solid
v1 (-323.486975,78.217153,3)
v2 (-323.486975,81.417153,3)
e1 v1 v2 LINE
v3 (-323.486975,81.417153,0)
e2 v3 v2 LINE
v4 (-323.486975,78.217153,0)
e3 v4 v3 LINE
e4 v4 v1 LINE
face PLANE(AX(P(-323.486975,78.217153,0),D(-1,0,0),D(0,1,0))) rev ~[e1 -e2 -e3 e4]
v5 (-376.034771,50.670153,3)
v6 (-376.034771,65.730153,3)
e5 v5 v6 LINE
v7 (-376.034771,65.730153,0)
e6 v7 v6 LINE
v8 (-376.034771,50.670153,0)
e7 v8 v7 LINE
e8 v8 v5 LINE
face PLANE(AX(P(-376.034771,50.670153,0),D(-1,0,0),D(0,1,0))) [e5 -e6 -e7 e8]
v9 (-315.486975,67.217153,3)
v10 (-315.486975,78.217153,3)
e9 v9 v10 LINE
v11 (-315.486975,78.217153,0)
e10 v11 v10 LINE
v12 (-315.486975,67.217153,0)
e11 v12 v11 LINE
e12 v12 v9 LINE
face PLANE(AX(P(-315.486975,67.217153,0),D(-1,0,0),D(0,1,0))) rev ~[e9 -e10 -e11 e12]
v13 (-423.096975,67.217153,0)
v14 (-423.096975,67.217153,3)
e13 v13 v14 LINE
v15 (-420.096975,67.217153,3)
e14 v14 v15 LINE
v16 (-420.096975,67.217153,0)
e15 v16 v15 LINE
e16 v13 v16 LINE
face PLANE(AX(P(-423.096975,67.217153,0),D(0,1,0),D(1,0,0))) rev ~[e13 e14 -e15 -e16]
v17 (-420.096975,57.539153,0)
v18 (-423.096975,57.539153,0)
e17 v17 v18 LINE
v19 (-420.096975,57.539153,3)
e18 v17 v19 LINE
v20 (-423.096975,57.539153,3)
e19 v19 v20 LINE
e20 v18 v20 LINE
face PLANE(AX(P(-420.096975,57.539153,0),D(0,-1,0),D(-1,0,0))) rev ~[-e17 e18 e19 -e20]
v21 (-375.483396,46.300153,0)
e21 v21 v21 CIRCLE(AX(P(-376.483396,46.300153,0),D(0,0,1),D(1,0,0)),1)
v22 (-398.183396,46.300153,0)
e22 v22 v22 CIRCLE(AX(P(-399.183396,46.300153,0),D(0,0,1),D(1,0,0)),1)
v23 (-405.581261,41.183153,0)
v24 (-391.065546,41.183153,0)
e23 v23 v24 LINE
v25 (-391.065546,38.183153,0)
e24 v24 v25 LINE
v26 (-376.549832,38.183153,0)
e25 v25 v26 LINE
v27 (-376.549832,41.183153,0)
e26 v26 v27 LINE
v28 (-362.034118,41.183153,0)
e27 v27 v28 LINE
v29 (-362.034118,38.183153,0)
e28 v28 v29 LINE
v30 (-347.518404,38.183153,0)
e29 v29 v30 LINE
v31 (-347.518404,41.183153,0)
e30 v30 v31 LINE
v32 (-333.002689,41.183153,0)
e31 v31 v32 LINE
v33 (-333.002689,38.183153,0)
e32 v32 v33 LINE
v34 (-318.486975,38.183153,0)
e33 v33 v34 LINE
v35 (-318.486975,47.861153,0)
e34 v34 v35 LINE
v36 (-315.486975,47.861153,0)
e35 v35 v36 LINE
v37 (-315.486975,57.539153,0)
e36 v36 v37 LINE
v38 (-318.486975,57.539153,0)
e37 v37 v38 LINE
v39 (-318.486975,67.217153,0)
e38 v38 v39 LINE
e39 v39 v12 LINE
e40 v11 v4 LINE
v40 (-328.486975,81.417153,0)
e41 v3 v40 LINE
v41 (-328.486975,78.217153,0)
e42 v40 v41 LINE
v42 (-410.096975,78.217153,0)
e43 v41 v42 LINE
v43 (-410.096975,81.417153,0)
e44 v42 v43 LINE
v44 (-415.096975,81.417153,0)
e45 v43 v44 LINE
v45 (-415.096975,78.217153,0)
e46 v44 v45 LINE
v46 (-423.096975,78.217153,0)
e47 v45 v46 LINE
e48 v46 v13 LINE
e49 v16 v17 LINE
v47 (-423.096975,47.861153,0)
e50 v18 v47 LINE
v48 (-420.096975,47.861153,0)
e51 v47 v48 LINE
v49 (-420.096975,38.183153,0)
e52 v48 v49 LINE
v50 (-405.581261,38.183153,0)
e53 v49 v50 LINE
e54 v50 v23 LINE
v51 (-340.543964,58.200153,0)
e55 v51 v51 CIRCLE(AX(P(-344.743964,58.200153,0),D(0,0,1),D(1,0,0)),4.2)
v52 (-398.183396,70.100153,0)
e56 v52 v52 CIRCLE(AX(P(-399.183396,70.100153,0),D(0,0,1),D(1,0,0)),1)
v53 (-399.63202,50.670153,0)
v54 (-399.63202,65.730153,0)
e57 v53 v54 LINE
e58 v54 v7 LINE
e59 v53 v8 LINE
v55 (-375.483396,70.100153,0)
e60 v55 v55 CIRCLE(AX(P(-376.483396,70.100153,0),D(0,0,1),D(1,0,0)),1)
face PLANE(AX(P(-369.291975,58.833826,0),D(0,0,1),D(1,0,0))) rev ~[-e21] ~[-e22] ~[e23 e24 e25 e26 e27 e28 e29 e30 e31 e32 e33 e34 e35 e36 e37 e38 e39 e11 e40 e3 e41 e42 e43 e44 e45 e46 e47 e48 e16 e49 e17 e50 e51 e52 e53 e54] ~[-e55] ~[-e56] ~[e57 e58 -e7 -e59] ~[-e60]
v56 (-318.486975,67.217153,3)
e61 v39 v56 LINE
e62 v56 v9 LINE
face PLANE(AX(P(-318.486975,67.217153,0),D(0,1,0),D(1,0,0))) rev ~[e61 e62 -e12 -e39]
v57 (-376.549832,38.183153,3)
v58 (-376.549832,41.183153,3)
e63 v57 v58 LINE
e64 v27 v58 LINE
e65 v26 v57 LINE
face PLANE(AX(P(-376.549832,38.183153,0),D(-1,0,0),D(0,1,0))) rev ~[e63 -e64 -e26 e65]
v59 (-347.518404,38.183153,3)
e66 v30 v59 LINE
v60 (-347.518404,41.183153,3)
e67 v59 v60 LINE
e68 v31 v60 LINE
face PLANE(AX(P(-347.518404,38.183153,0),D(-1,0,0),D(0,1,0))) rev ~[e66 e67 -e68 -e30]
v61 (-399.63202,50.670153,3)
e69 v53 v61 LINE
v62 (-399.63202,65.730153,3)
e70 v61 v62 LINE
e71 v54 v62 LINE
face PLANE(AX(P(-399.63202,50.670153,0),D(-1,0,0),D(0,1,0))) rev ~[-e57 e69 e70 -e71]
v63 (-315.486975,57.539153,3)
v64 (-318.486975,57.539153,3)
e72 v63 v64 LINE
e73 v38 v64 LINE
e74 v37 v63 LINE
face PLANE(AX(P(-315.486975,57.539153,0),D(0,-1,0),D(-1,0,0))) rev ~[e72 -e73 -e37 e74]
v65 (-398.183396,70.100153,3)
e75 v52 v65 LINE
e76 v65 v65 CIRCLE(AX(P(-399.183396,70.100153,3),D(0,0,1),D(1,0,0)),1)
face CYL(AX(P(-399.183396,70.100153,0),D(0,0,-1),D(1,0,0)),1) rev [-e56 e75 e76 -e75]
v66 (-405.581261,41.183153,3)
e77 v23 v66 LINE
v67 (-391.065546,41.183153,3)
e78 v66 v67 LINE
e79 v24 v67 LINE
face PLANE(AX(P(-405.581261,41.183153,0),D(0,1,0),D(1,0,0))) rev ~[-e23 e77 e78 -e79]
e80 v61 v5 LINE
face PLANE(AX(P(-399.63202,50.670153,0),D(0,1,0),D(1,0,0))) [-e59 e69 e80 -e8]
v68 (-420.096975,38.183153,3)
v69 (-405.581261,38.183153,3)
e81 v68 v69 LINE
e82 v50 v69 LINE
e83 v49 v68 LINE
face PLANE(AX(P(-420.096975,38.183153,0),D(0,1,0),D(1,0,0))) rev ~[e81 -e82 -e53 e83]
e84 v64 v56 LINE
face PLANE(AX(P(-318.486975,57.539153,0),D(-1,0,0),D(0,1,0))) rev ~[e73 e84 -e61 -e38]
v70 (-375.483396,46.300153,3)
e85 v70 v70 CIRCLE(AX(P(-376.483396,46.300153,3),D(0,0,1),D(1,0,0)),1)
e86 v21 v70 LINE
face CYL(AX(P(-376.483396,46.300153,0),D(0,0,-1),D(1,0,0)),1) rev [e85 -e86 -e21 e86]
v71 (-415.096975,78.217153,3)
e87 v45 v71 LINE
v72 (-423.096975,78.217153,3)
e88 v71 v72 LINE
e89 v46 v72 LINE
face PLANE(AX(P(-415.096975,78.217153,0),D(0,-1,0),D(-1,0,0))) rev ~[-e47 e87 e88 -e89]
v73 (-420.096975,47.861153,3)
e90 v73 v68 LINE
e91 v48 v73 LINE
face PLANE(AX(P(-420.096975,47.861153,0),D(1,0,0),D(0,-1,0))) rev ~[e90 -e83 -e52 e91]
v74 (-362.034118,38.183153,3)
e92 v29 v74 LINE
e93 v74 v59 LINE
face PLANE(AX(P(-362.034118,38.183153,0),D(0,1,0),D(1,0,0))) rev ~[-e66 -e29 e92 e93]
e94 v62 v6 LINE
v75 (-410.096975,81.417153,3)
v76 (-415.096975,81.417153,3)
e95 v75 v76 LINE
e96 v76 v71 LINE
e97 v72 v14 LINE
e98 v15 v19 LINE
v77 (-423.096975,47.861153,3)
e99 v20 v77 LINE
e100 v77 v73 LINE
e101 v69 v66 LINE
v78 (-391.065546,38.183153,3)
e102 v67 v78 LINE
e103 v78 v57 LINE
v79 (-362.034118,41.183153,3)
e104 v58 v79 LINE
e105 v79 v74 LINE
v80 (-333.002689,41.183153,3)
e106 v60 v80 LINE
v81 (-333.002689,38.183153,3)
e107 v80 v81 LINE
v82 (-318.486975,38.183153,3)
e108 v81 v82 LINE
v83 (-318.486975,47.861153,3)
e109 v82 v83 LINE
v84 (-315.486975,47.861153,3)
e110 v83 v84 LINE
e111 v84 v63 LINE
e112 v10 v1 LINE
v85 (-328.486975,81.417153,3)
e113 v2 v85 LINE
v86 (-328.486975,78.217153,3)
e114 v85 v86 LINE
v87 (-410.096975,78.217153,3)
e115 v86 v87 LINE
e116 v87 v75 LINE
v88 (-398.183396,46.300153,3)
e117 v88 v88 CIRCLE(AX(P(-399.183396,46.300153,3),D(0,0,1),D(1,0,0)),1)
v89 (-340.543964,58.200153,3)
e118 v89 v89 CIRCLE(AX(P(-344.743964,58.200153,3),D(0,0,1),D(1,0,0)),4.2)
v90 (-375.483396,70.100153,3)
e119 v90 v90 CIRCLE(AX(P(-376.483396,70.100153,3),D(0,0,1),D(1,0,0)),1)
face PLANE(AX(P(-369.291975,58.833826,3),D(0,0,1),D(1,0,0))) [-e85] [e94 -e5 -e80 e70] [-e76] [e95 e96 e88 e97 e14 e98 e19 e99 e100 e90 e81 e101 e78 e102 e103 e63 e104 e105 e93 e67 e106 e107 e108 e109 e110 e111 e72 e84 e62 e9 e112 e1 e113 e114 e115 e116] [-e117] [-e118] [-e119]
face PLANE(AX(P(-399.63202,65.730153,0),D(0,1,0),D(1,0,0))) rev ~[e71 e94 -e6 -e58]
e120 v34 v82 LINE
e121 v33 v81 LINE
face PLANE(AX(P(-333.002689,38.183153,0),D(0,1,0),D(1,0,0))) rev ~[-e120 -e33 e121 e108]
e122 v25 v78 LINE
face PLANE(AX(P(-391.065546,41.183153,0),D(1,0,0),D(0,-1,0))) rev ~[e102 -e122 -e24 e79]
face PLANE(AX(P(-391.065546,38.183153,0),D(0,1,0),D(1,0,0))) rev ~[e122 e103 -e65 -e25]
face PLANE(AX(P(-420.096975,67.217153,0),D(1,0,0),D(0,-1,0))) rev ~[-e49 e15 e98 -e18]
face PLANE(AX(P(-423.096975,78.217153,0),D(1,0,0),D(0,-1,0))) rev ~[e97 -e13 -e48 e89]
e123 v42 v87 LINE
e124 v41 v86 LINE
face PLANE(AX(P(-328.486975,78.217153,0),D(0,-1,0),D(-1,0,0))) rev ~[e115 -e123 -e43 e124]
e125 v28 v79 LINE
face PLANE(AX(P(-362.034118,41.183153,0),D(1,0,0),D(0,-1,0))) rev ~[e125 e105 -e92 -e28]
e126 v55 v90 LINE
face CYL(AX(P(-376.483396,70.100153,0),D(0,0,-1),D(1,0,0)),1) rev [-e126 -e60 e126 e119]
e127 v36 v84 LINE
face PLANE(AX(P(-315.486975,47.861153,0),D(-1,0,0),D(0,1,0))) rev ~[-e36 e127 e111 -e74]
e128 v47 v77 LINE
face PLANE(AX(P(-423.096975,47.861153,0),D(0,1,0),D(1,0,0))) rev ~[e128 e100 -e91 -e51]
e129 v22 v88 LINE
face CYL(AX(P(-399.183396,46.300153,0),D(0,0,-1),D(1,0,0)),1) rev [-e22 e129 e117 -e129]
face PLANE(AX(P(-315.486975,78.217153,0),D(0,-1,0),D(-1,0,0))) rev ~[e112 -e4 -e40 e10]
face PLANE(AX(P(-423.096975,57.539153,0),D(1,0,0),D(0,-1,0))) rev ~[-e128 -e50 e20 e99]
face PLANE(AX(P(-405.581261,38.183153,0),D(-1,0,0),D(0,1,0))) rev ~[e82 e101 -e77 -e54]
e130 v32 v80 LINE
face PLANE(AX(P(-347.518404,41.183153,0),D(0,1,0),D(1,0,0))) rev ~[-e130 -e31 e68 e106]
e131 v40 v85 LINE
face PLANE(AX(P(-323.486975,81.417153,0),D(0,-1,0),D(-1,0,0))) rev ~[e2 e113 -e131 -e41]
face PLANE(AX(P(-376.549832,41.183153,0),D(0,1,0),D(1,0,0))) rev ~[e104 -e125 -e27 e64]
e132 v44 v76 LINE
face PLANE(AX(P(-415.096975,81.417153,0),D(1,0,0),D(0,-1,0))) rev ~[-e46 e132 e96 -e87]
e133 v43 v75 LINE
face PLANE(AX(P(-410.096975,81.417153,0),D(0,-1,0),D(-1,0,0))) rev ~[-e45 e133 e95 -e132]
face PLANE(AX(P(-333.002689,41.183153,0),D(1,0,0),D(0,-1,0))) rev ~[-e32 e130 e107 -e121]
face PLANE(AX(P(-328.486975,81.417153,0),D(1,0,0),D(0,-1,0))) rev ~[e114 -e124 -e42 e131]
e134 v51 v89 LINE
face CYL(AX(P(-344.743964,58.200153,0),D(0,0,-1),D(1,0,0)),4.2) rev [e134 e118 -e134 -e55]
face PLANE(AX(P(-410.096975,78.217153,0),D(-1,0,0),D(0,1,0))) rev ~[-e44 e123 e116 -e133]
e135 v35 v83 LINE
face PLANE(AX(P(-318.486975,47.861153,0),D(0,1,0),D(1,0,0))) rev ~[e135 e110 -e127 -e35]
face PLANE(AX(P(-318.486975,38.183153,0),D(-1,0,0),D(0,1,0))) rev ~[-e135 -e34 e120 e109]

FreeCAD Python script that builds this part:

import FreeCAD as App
import Part
import Sketcher
Q = App.Units.Quantity


def add_polygon(sketch, points):
    """Adds a closed chain of lines whose ends are joined by coincident constraints."""
    first, n = sketch.GeometryCount, len(points)
    for a, b in zip(points, points[1:] + points[:1]):
        sketch.addGeometry(Part.LineSegment(App.Vector(*a, 0), App.Vector(*b, 0)), False)
    for i in range(n):
        sketch.addConstraint(Sketcher.Constraint("Coincident", first + i, 2, first + (i + 1) % n, 1))

doc = App.newDocument("Part")
body = doc.addObject("PartDesign::Body", "Body")

sketch1 = body.newObject("Sketcher::SketchObject", "Sketch")
sketch1.AttachmentSupport = (doc.getObject("XY_Plane"), [""])
sketch1.MapMode = "FlatFace"
add_polygon(sketch1, [(-333, 38.2), (-318.5, 38.2), (-318.5, 47.9), (-315.5, 47.9), (-315.5, 57.5), (-318.5, 57.5), (-318.5, 67.2), (-315.5, 67.2), (-315.5, 78.2), (-323.5, 78.2), (-323.5, 81.4), (-328.5, 81.4), (-328.5, 78.2), (-410.1, 78.2), (-410.1, 81.4), (-415.1, 81.4), (-415.1, 78.2), (-423.1, 78.2), (-423.1, 67.2), (-420.1, 67.2), (-420.1, 57.5), (-423.1, 57.5), (-423.1, 47.9), (-420.1, 47.9), (-420.1, 38.2), (-405.6, 38.2), (-405.6, 41.2), (-391.1, 41.2), (-391.1, 38.2), (-376.5, 38.2), (-376.5, 41.2), (-362, 41.2), (-362, 38.2), (-347.5, 38.2), (-347.5, 41.2), (-333, 41.2)])
sketch1.addGeometry(Part.Circle(App.Vector(-399.2, 46.3, 0), App.Vector(0, 0, 1), 1), False)
sketch1.addGeometry(Part.Circle(App.Vector(-376.5, 46.3, 0), App.Vector(0, 0, 1), 1), False)
add_polygon(sketch1, [(-376, 50.7), (-399.6, 50.7), (-399.6, 65.7), (-376, 65.7)])
sketch1.addGeometry(Part.Circle(App.Vector(-399.2, 70.1, 0), App.Vector(0, 0, 1), 1), False)
sketch1.addGeometry(Part.Circle(App.Vector(-376.5, 70.1, 0), App.Vector(0, 0, 1), 1), False)
sketch1.addGeometry(Part.Circle(App.Vector(-344.7, 58.2, 0), App.Vector(0, 0, 1), 4.2), False)
sketch1.addConstraint([
    Sketcher.Constraint("Horizontal", 0),
    Sketcher.Constraint("Vertical", 1),
    Sketcher.Constraint("Horizontal", 2),
    Sketcher.Constraint("Vertical", 3),
    Sketcher.Constraint("Horizontal", 4),
    Sketcher.Constraint("Vertical", 5),
    Sketcher.Constraint("Horizontal", 6),
    Sketcher.Constraint("Vertical", 7),
    Sketcher.Constraint("Horizontal", 8),
    Sketcher.Constraint("Vertical", 9),
    Sketcher.Constraint("Horizontal", 10),
    Sketcher.Constraint("Vertical", 11),
    Sketcher.Constraint("Horizontal", 12),
    Sketcher.Constraint("Vertical", 13),
    Sketcher.Constraint("Horizontal", 14),
    Sketcher.Constraint("Vertical", 15),
    Sketcher.Constraint("Horizontal", 16),
    Sketcher.Constraint("Vertical", 17),
    Sketcher.Constraint("Horizontal", 18),
    Sketcher.Constraint("Vertical", 19),
    Sketcher.Constraint("Horizontal", 20),
    Sketcher.Constraint("Vertical", 21),
    Sketcher.Constraint("Horizontal", 22),
    Sketcher.Constraint("Vertical", 23),
    Sketcher.Constraint("Horizontal", 24),
    Sketcher.Constraint("Vertical", 25),
    Sketcher.Constraint("Horizontal", 26),
    Sketcher.Constraint("Vertical", 27),
    Sketcher.Constraint("Horizontal", 28),
    Sketcher.Constraint("Vertical", 29),
    Sketcher.Constraint("Horizontal", 30),
    Sketcher.Constraint("Vertical", 31),
    Sketcher.Constraint("Horizontal", 32),
    Sketcher.Constraint("Vertical", 33),
    Sketcher.Constraint("Horizontal", 34),
    Sketcher.Constraint("Vertical", 35),
    Sketcher.Constraint("Horizontal", 38),
    Sketcher.Constraint("Vertical", 39),
    Sketcher.Constraint("Horizontal", 40),
    Sketcher.Constraint("Vertical", 41),
    Sketcher.Constraint("Equal", 36, 37),
    Sketcher.Constraint("Equal", 37, 42),
    Sketcher.Constraint("Equal", 42, 43),
    Sketcher.Constraint("Horizontal", 36, 3, 37, 3),
    Sketcher.Constraint("Horizontal", 42, 3, 43, 3),
    Sketcher.Constraint("Horizontal", 8, 2, 11, 2),
    Sketcher.Constraint("Horizontal", 10, 2, 13, 2),
    Sketcher.Constraint("Horizontal", 12, 2, 15, 2),
    Sketcher.Constraint("Horizontal", 6, 2, 17, 2),
    Sketcher.Constraint("Horizontal", 4, 2, 19, 2),
    Sketcher.Constraint("Horizontal", 2, 2, 21, 2),
    Sketcher.Constraint("Horizontal", 0, 2, 23, 2),
    Sketcher.Constraint("Horizontal", 24, 2, 27, 2),
    Sketcher.Constraint("Horizontal", 26, 2, 29, 2),
    Sketcher.Constraint("Horizontal", 28, 2, 31, 2),
    Sketcher.Constraint("Horizontal", 30, 2, 33, 2),
    Sketcher.Constraint("Vertical", 36, 3, 42, 3),
    Sketcher.Constraint("Vertical", 37, 3, 43, 3),
    Sketcher.Constraint("Vertical", 1, 2, 4, 2),
    Sketcher.Constraint("Vertical", 3, 2, 6, 2),
    Sketcher.Constraint("Vertical", 17, 2, 20, 2),
    Sketcher.Constraint("Vertical", 19, 2, 22, 2),
    Sketcher.Constraint("Equal", 10, 14),
    Sketcher.Constraint("Equal", 8, 16),
    Sketcher.Constraint("Equal", 6, 18),
    Sketcher.Constraint("Equal", 0, 24),
    Sketcher.Constraint("Equal", 24, 26),
    Sketcher.Constraint("Equal", 26, 28),
    Sketcher.Constraint("Equal", 28, 30),
    Sketcher.Constraint("Equal", 30, 32),
    Sketcher.Constraint("Equal", 32, 34),
    Sketcher.Constraint("Equal", 1, 3),
    Sketcher.Constraint("Equal", 3, 5),
    Sketcher.Constraint("Equal", 22, 25),
    Sketcher.Constraint("Diameter", 36, Q("2 mm")),
    Sketcher.Constraint("Diameter", 44, Q("8.4 mm")),
    Sketcher.Constraint("DistanceX", 2, 1, 2, 2, Q("3 mm")),
    Sketcher.Constraint("DistanceX", 8, 2, 8, 1, Q("8 mm")),
    Sketcher.Constraint("DistanceX", 10, 2, 10, 1, Q("5 mm")),
    Sketcher.Constraint("DistanceY", 7, 1, 7, 2, Q("11 mm")),
    Sketcher.Constraint("DistanceY", 9, 1, 9, 2, Q("3.2 mm")),
    Sketcher.Constraint("DistanceX", 12, 2, 12, 1, Q("81.61 mm")),
    Sketcher.Constraint("DistanceY", 39, 1, 39, 2, Q("15.06 mm")),
    Sketcher.Constraint("DistanceX", 36, 3, 37, 3, Q("22.7 mm")),
    Sketcher.Constraint("DistanceY", 36, 3, 42, 3, Q("23.8 mm")),
    Sketcher.Constraint("DistanceY", 37, 3, 44, 3, Q("11.9 mm")),
    Sketcher.Constraint("DistanceY", 1, 1, 1, 2, Q("9.678 mm")),
    Sketcher.Constraint("DistanceY", 36, 3, 38, 2, Q("4.37 mm")),
    Sketcher.Constraint("DistanceY", 0, 2, 44, 3, Q("20.017 mm")),
    Sketcher.Constraint("DistanceX", 38, 2, 38, 1, Q("23.597249 mm")),
    Sketcher.Constraint("DistanceX", 24, 2, -1, 1, Q("405.581261 mm")),
    Sketcher.Constraint("DistanceX", 38, 2, -1, 1, Q("399.63202 mm")),
    Sketcher.Constraint("DistanceX", 37, 3, 44, 3, Q("31.739432 mm")),
    Sketcher.Constraint("DistanceX", 44, 3, 0, 2, Q("26.256989 mm")),
    Sketcher.Constraint("DistanceY", -1, 1, 36, 3, Q("46.300153 mm")),
])
pad1 = body.newObject("PartDesign::Pad", "Pad")
pad1.Profile = sketch1
pad1.Length = 3

doc.recompute()
